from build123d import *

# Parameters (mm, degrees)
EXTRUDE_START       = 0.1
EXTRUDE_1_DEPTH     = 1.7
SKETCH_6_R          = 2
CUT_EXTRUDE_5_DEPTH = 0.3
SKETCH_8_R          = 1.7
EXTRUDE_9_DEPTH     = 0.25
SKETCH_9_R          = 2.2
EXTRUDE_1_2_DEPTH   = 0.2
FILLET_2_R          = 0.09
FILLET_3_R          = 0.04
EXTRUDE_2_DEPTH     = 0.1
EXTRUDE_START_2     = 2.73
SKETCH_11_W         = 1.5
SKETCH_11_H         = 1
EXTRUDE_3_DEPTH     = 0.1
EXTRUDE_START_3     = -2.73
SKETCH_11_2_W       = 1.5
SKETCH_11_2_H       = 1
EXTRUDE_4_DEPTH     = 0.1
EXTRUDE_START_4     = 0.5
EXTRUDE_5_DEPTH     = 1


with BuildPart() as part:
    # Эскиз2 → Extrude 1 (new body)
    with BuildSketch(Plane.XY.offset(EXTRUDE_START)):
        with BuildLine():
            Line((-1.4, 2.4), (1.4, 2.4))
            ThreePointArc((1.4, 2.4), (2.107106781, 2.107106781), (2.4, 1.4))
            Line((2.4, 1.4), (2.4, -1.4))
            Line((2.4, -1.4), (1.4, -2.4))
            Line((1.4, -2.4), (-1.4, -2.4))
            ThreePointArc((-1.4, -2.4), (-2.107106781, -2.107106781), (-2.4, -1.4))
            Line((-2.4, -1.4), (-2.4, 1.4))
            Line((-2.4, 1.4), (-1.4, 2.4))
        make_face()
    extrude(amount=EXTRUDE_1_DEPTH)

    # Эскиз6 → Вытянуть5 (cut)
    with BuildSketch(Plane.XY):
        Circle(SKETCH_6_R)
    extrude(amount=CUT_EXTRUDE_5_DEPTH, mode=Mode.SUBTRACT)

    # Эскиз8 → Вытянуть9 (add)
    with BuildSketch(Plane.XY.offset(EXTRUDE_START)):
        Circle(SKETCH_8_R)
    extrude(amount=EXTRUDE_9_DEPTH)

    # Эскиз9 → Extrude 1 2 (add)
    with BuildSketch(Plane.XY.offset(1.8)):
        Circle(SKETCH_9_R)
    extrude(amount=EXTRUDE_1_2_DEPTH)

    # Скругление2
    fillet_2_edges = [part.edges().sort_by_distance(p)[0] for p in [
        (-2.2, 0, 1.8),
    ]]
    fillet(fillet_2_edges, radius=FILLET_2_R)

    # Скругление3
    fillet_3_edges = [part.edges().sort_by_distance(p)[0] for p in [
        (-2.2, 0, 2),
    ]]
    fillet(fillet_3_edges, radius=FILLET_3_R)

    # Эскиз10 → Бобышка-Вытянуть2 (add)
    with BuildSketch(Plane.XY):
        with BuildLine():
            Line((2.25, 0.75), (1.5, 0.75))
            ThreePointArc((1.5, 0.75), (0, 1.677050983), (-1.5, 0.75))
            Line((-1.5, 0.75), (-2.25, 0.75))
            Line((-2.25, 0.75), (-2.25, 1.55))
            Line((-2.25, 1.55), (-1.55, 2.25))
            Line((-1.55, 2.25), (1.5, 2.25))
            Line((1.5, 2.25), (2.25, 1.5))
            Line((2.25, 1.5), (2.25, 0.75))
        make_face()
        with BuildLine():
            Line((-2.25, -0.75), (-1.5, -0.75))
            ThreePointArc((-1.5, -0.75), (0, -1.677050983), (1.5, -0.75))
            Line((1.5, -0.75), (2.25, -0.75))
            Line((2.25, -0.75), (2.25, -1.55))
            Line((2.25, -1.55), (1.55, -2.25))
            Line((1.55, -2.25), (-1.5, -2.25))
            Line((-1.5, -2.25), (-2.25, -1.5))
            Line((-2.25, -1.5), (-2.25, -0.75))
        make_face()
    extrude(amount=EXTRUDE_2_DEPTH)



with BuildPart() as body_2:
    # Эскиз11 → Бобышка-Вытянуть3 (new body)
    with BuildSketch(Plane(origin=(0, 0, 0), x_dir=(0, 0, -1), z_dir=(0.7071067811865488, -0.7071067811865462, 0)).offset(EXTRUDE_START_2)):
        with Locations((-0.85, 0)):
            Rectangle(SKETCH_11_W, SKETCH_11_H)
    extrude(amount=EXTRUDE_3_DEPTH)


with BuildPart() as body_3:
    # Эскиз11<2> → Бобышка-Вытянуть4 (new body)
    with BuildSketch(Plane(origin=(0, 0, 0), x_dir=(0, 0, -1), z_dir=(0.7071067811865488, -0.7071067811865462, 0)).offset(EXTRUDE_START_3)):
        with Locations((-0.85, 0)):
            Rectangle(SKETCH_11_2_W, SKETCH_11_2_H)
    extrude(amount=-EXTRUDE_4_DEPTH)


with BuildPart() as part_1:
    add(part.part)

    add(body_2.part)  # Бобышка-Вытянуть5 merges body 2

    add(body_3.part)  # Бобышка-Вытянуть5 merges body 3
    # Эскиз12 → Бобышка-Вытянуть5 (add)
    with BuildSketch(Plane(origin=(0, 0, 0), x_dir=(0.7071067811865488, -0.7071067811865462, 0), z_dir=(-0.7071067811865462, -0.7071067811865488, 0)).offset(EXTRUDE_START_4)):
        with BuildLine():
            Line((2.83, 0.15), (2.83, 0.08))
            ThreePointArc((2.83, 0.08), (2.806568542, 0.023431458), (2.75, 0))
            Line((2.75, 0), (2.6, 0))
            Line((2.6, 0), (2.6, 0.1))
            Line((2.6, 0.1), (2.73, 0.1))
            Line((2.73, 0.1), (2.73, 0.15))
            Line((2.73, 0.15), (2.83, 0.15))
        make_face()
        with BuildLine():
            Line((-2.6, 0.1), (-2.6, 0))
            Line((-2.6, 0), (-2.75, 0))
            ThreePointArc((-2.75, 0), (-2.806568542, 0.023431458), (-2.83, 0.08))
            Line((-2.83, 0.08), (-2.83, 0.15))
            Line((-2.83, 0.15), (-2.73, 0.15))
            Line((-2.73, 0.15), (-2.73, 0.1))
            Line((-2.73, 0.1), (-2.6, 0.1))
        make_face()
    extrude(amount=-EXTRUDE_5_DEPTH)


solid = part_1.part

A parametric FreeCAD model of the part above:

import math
import FreeCAD as App
import Part
import Sketcher

V = App.Vector
Q = App.Units.Quantity


def edges_at(feature, points):
    """Names of the edges that pass closest to the given points."""
    edges = feature.Shape.Edges
    near = lambda p: min(range(len(edges)), key=lambda i: edges[i].distToShape(Part.Vertex(*p))[0])
    return sorted({f"Edge{near(p) + 1}" for p in points})


def add_polygon(sketch, points):
    """Adds a closed chain of lines whose ends are joined by coincident constraints."""
    first, n = sketch.GeometryCount, len(points)
    for a, b in zip(points, points[1:] + points[:1]):
        sketch.addGeometry(Part.LineSegment(App.Vector(*a, 0), App.Vector(*b, 0)), False)
    for i in range(n):
        sketch.addConstraint(Sketcher.Constraint("Coincident", first + i, 2, first + (i + 1) % n, 1))

doc = App.newDocument("Part")
body = doc.addObject("PartDesign::Body", "Body")

# Sketch on XY plane
sketch1 = body.newObject("Sketcher::SketchObject", "Sketch")
sketch1.AttachmentSupport = (doc.getObject("XY_Plane"), [""])
sketch1.MapMode = "FlatFace"
sketch1.AttachmentOffset = App.Placement(V(0, 0, 0.1), App.Rotation())
sketch1.addGeometry(Part.LineSegment(V(1.4, 2.4, 0), V(-1.4, 2.4, 0)), False)
sketch1.addGeometry(Part.LineSegment(V(-1.4, 2.4, 0), V(-2.4, 1.4, 0)), False)
sketch1.addGeometry(Part.LineSegment(V(-2.4, 1.4, 0), V(-2.4, -1.4, 0)), False)
sketch1.addGeometry(Part.ArcOfCircle(Part.Circle(V(-1.4, -1.4, 0), V(0, 0, 1), 1), math.radians(-180), math.radians(-90)), False)
sketch1.addGeometry(Part.LineSegment(V(-1.4, -2.4, 0), V(1.4, -2.4, 0)), False)
sketch1.addGeometry(Part.LineSegment(V(1.4, -2.4, 0), V(2.4, -1.4, 0)), False)
sketch1.addGeometry(Part.LineSegment(V(2.4, -1.4, 0), V(2.4, 1.4, 0)), False)
sketch1.addGeometry(Part.ArcOfCircle(Part.Circle(V(1.4, 1.4, 0), V(0, 0, 1), 1), math.radians(0), math.radians(90)), False)
sketch1.addConstraint(Sketcher.Constraint("Coincident", 0, 2, 1, 1))
sketch1.addConstraint(Sketcher.Constraint("Coincident", 1, 2, 2, 1))
sketch1.addConstraint(Sketcher.Constraint("Tangent", 2, 2, 3, 1))
sketch1.addConstraint(Sketcher.Constraint("Tangent", 3, 2, 4, 1))
sketch1.addConstraint(Sketcher.Constraint("Coincident", 4, 2, 5, 1))
sketch1.addConstraint(Sketcher.Constraint("Coincident", 5, 2, 6, 1))
sketch1.addConstraint(Sketcher.Constraint("Tangent", 6, 2, 7, 1))
sketch1.addConstraint(Sketcher.Constraint("Tangent", 7, 2, 0, 1))
sketch1.addConstraint(Sketcher.Constraint("Horizontal", 0))
sketch1.addConstraint(Sketcher.Constraint("Vertical", 2))
sketch1.addConstraint(Sketcher.Constraint("Horizontal", 4))
sketch1.addConstraint(Sketcher.Constraint("Vertical", 6))
sketch1.addConstraint(Sketcher.Constraint("Equal", 3, 7))
sketch1.addConstraint(Sketcher.Constraint("Symmetric", 3, 3, 7, 3, -1, 1))
sketch1.addConstraint(Sketcher.Constraint("Parallel", 1, 5))
sketch1.addConstraint(Sketcher.Constraint("Horizontal", 7, 3, 1, 2))
sketch1.addConstraint(Sketcher.Constraint("Horizontal", 2, 2, 5, 2))
sketch1.addConstraint(Sketcher.Constraint("Vertical", 3, 3, 0, 2))
sketch1.addConstraint(Sketcher.Constraint("Equal", 4, 2))
sketch1.addConstraint(Sketcher.Constraint("Radius", 3, 1.0))
sketch1.addConstraint(Sketcher.Constraint("DistanceX", 0, 2, 0, 1, 2.8))
pad1 = body.newObject("PartDesign::Pad", "Pad")
pad1.Profile = sketch1
pad1.Length = 1.7

# Sketch on XY plane
sketch2 = body.newObject("Sketcher::SketchObject", "Sketch001")
sketch2.AttachmentSupport = (doc.getObject("XY_Plane"), [""])
sketch2.MapMode = "FlatFace"
sketch2.addGeometry(Part.Circle(V(0, 0, 0), V(0, 0, 1), 2), False)
sketch2.addConstraint(Sketcher.Constraint("Coincident", 0, 3, -1, 1))
sketch2.addConstraint(Sketcher.Constraint("Diameter", 0, 4.0))
pocket1 = body.newObject("PartDesign::Pocket", "Pocket")
pocket1.Profile = sketch2
pocket1.Length = 0.3
pocket1.Reversed = True

# Sketch on XY plane
sketch3 = body.newObject("Sketcher::SketchObject", "Sketch002")
sketch3.AttachmentSupport = (doc.getObject("XY_Plane"), [""])
sketch3.MapMode = "FlatFace"
sketch3.AttachmentOffset = App.Placement(V(0, 0, 0.1), App.Rotation())
sketch3.addGeometry(Part.Circle(V(0, 0, 0), V(0, 0, 1), 1.7), False)
sketch3.addConstraint(Sketcher.Constraint("Coincident", 0, 3, -1, 1))
sketch3.addConstraint(Sketcher.Constraint("Diameter", 0, 3.4))
pad2 = body.newObject("PartDesign::Pad", "Pad001")
pad2.Profile = sketch3
pad2.Length = 0.25

# Sketch on XY plane
sketch4 = body.newObject("Sketcher::SketchObject", "Sketch003")
sketch4.AttachmentSupport = (doc.getObject("XY_Plane"), [""])
sketch4.MapMode = "FlatFace"
sketch4.AttachmentOffset = App.Placement(V(0, 0, 1.8), App.Rotation())
sketch4.addGeometry(Part.Circle(V(0, 0, 0), V(0, 0, 1), 2.2), False)
sketch4.addConstraint(Sketcher.Constraint("Coincident", 0, 3, -1, 1))
sketch4.addConstraint(Sketcher.Constraint("Diameter", 0, 4.4))
pad3 = body.newObject("PartDesign::Pad", "Pad002")
pad3.Profile = sketch4
pad3.Length = 0.2
doc.recompute()

fillet = body.newObject("PartDesign::Fillet", "Fillet")
fillet.Base = (pad3, edges_at(pad3, [(-2.2, 0, 1.8)]))
fillet.Radius = 0.09
doc.recompute()

fillet2 = body.newObject("PartDesign::Fillet", "Fillet001")
fillet2.Base = (fillet, edges_at(fillet, [(-2.2, 0, 2)]))
fillet2.Radius = 0.04

# Sketch on XY plane
sketch5 = body.newObject("Sketcher::SketchObject", "Sketch004")
sketch5.AttachmentSupport = (doc.getObject("XY_Plane"), [""])
sketch5.MapMode = "FlatFace"
sketch5.addGeometry(Part.LineSegment(V(1.5, 0.8, 0), V(2.2, 0.8, 0)), False)
sketch5.addGeometry(Part.LineSegment(V(2.2, 0.8, 0), V(2.2, 1.5, 0)), False)
sketch5.addGeometry(Part.LineSegment(V(2.2, 1.5, 0), V(1.5, 2.2, 0)), False)
sketch5.addGeometry(Part.LineSegment(V(1.5, 2.2, 0), V(-1.6, 2.2, 0)), False)
sketch5.addGeometry(Part.LineSegment(V(-1.6, 2.2, 0), V(-2.2, 1.6, 0)), False)
sketch5.addGeometry(Part.LineSegment(V(-2.2, 1.6, 0), V(-2.2, 0.8, 0)), False)
sketch5.addGeometry(Part.LineSegment(V(-2.2, 0.8, 0), V(-1.5, 0.8, 0)), False)
sketch5.addGeometry(Part.ArcOfCircle(Part.Circle(V(0, 0, 0), V(0, 0, 1), 1.7), math.radians(27), math.radians(153)), False)
sketch5.addGeometry(Part.LineSegment(V(-1.5, -0.8, 0), V(-2.2, -0.8, 0)), False)
sketch5.addGeometry(Part.LineSegment(V(-2.2, -0.8, 0), V(-2.2, -1.5, 0)), False)
sketch5.addGeometry(Part.LineSegment(V(-2.2, -1.5, 0), V(-1.5, -2.2, 0)), False)
sketch5.addGeometry(Part.LineSegment(V(-1.5, -2.2, 0), V(1.6, -2.2, 0)), False)
sketch5.addGeometry(Part.LineSegment(V(1.6, -2.2, 0), V(2.2, -1.6, 0)), False)
sketch5.addGeometry(Part.LineSegment(V(2.2, -1.6, 0), V(2.2, -0.8, 0)), False)
sketch5.addGeometry(Part.LineSegment(V(2.2, -0.8, 0), V(1.5, -0.8, 0)), False)
sketch5.addGeometry(Part.ArcOfCircle(Part.Circle(V(0, 0, 0), V(0, 0, 1), 1.7), math.radians(-153), math.radians(-27)), False)
sketch5.addConstraint(Sketcher.Constraint("Coincident", 0, 2, 1, 1))
sketch5.addConstraint(Sketcher.Constraint("Coincident", 1, 2, 2, 1))
sketch5.addConstraint(Sketcher.Constraint("Coincident", 2, 2, 3, 1))
sketch5.addConstraint(Sketcher.Constraint("Coincident", 3, 2, 4, 1))
sketch5.addConstraint(Sketcher.Constraint("Coincident", 4, 2, 5, 1))
sketch5.addConstraint(Sketcher.Constraint("Coincident", 5, 2, 6, 1))
sketch5.addConstraint(Sketcher.Constraint("Coincident", 6, 2, 7, 2))
sketch5.addConstraint(Sketcher.Constraint("Coincident", 7, 1, 0, 1))
sketch5.addConstraint(Sketcher.Constraint("Coincident", 8, 2, 9, 1))
sketch5.addConstraint(Sketcher.Constraint("Coincident", 9, 2, 10, 1))
sketch5.addConstraint(Sketcher.Constraint("Coincident", 10, 2, 11, 1))
sketch5.addConstraint(Sketcher.Constraint("Coincident", 11, 2, 12, 1))
sketch5.addConstraint(Sketcher.Constraint("Coincident", 12, 2, 13, 1))
sketch5.addConstraint(Sketcher.Constraint("Coincident", 13, 2, 14, 1))
sketch5.addConstraint(Sketcher.Constraint("Coincident", 14, 2, 15, 2))
sketch5.addConstraint(Sketcher.Constraint("Coincident", 15, 1, 8, 1))
sketch5.addConstraint(Sketcher.Constraint("Horizontal", 0))
sketch5.addConstraint(Sketcher.Constraint("Vertical", 1))
sketch5.addConstraint(Sketcher.Constraint("Horizontal", 3))
sketch5.addConstraint(Sketcher.Constraint("Vertical", 5))
sketch5.addConstraint(Sketcher.Constraint("Horizontal", 6))
sketch5.addConstraint(Sketcher.Constraint("Horizontal", 8))
sketch5.addConstraint(Sketcher.Constraint("Vertical", 9))
sketch5.addConstraint(Sketcher.Constraint("Horizontal", 11))
sketch5.addConstraint(Sketcher.Constraint("Vertical", 13))
sketch5.addConstraint(Sketcher.Constraint("Horizontal", 14))
sketch5.addConstraint(Sketcher.Constraint("Coincident", 7, 3, -1, 1))
sketch5.addConstraint(Sketcher.Constraint("Coincident", 15, 3, -1, 1))
sketch5.addConstraint(Sketcher.Constraint("Equal", 7, 15))
sketch5.addConstraint(Sketcher.Constraint("Symmetric", 0, 2, 8, 2, -1, 1))
sketch5.addConstraint(Sketcher.Constraint("Symmetric", 2, 2, 10, 2, -1, 1))
sketch5.addConstraint(Sketcher.Constraint("Symmetric", 4, 2, 12, 2, -1, 1))
sketch5.addConstraint(Sketcher.Constraint("Symmetric", 0, 2, 5, 2, -2))
sketch5.addConstraint(Sketcher.Constraint("Perpendicular", 2, 4))
sketch5.addConstraint(Sketcher.Constraint("Perpendicular", 4, 10))
sketch5.addConstraint(Sketcher.Constraint("Perpendicular", 10, 12))
sketch5.addConstraint(Sketcher.Constraint("Horizontal", 8, 2, 13, 2))
sketch5.addConstraint(Sketcher.Constraint("Vertical", 2, 2, 7, 1))
sketch5.addConstraint(Sketcher.Constraint("Equal", 14, 1))
sketch5.addConstraint(Sketcher.Constraint("Angle", 2, Q("135 deg")))
sketch5.addConstraint(Sketcher.Constraint("DistanceY", 5, 2, 5, 1, 0.8))
sketch5.addConstraint(Sketcher.Constraint("DistanceY", 10, 2, 6, 2, 3.0))
sketch5.addConstraint(Sketcher.Constraint("DistanceX", 0, 1, 0, 2, 0.75))
sketch5.addConstraint(Sketcher.Constraint("DistanceX", 3, 2, 3, 1, 3.05))
pad4 = body.newObject("PartDesign::Pad", "Pad003")
pad4.Profile = sketch5
pad4.Length = 0.1
body2 = doc.addObject("PartDesign::Body", "Body001")

# Sketch on an angled plane
sketch6 = body2.newObject("Sketcher::SketchObject", "Sketch005")
sketch6.Placement = App.Placement(V(1.930402, -1.930402, 0), App.Rotation(V(0, 0, -1), V(0.707106781, 0.707106781, 0), V(0.707106781, -0.707106781, 0), "ZXY"))
add_polygon(sketch6, [(-1.6, 0.5), (-1.6, -0.5), (-0.1, -0.5), (-0.1, 0.5)])  # lines 0-3
sketch6.addConstraint(Sketcher.Constraint("Vertical", 0))
sketch6.addConstraint(Sketcher.Constraint("Horizontal", 1))
sketch6.addConstraint(Sketcher.Constraint("Vertical", 2))
sketch6.addConstraint(Sketcher.Constraint("Horizontal", 3))
sketch6.addConstraint(Sketcher.Constraint("DistanceY", 0, 2, 0, 1, 1.0))
sketch6.addConstraint(Sketcher.Constraint("DistanceX", 1, 1, 1, 2, 1.5))
sketch6.addConstraint(Sketcher.Constraint("DistanceX", 0, 2, -1, 1, 1.6))
sketch6.addConstraint(Sketcher.Constraint("DistanceY", 0, 2, -1, 1, 0.5))
pad5 = body2.newObject("PartDesign::Pad", "Pad004")
pad5.Profile = sketch6
pad5.Length = 0.1
body3 = doc.addObject("PartDesign::Body", "Body002")

# Sketch on an angled plane
sketch7 = body3.newObject("Sketcher::SketchObject", "Sketch006")
sketch7.Placement = App.Placement(V(-1.930402, 1.930402, 0), App.Rotation(V(0, 0, -1), V(0.707106781, 0.707106781, 0), V(0.707106781, -0.707106781, 0), "ZXY"))
add_polygon(sketch7, [(-1.6, 0.5), (-1.6, -0.5), (-0.1, -0.5), (-0.1, 0.5)])  # lines 0-3
sketch7.addConstraint(Sketcher.Constraint("Vertical", 0))
sketch7.addConstraint(Sketcher.Constraint("Horizontal", 1))
sketch7.addConstraint(Sketcher.Constraint("Vertical", 2))
sketch7.addConstraint(Sketcher.Constraint("Horizontal", 3))
sketch7.addConstraint(Sketcher.Constraint("DistanceY", 0, 2, 0, 1, 1.0))
sketch7.addConstraint(Sketcher.Constraint("DistanceX", 1, 1, 1, 2, 1.5))
sketch7.addConstraint(Sketcher.Constraint("DistanceX", 0, 2, -1, 1, 1.6))
sketch7.addConstraint(Sketcher.Constraint("DistanceY", 0, 2, -1, 1, 0.5))
pad6 = body3.newObject("PartDesign::Pad", "Pad005")
pad6.Profile = sketch7
pad6.Length = 0.1
pad6.Reversed = True
body.AllowCompound = True
doc.recompute()

boolean = body.newObject("PartDesign::Boolean", "Boolean")
boolean.Type = "Fuse"
boolean.addObjects([body2])
doc.recompute()

boolean2 = body.newObject("PartDesign::Boolean", "Boolean001")
boolean2.Type = "Fuse"
boolean2.addObjects([body3])

# Sketch on an angled plane
sketch8 = body.newObject("Sketcher::SketchObject", "Sketch007")
sketch8.Placement = App.Placement(V(-0.353553, -0.353553, 0), App.Rotation(V(0.707106781, -0.707106781, 0), V(0, 0, 0.999999999), V(-0.707106781, -0.707106781, 0), "ZXY"))
sketch8.addGeometry(Part.LineSegment(V(2.83, 0.08, 0), V(2.83, 0.15, 0)), False)
sketch8.addGeometry(Part.LineSegment(V(2.83, 0.15, 0), V(2.73, 0.15, 0)), False)
sketch8.addGeometry(Part.LineSegment(V(2.73, 0.15, 0), V(2.73, 0.1, 0)), False)
sketch8.addGeometry(Part.LineSegment(V(2.73, 0.1, 0), V(2.6, 0.1, 0)), False)
sketch8.addGeometry(Part.LineSegment(V(2.6, 0.1, 0), V(2.6, 0, 0)), False)
sketch8.addGeometry(Part.LineSegment(V(2.6, 0, 0), V(2.75, 0, 0)), False)
sketch8.addGeometry(Part.ArcOfCircle(Part.Circle(V(2.75, 0.08, 0), V(0, 0, 1), 0.08), math.radians(-90), math.radians(0)), False)
sketch8.addGeometry(Part.LineSegment(V(-2.6, 0, 0), V(-2.6, 0.1, 0)), False)
sketch8.addGeometry(Part.LineSegment(V(-2.6, 0.1, 0), V(-2.73, 0.1, 0)), False)
sketch8.addGeometry(Part.LineSegment(V(-2.73, 0.1, 0), V(-2.73, 0.15, 0)), False)
sketch8.addGeometry(Part.LineSegment(V(-2.73, 0.15, 0), V(-2.83, 0.15, 0)), False)
sketch8.addGeometry(Part.LineSegment(V(-2.83, 0.15, 0), V(-2.83, 0.08, 0)), False)
sketch8.addGeometry(Part.ArcOfCircle(Part.Circle(V(-2.75, 0.08, 0), V(0, 0, 1), 0.08), math.radians(-180), math.radians(-90)), False)
sketch8.addGeometry(Part.LineSegment(V(-2.75, 0, 0), V(-2.6, 0, 0)), False)
sketch8.addConstraint(Sketcher.Constraint("Coincident", 0, 2, 1, 1))
sketch8.addConstraint(Sketcher.Constraint("Coincident", 1, 2, 2, 1))
sketch8.addConstraint(Sketcher.Constraint("Coincident", 2, 2, 3, 1))
sketch8.addConstraint(Sketcher.Constraint("Coincident", 3, 2, 4, 1))
sketch8.addConstraint(Sketcher.Constraint("Coincident", 4, 2, 5, 1))
sketch8.addConstraint(Sketcher.Constraint("Tangent", 5, 2, 6, 1))
sketch8.addConstraint(Sketcher.Constraint("Tangent", 6, 2, 0, 1))
sketch8.addConstraint(Sketcher.Constraint("Coincident", 7, 2, 8, 1))
sketch8.addConstraint(Sketcher.Constraint("Coincident", 8, 2, 9, 1))
sketch8.addConstraint(Sketcher.Constraint("Coincident", 9, 2, 10, 1))
sketch8.addConstraint(Sketcher.Constraint("Coincident", 10, 2, 11, 1))
sketch8.addConstraint(Sketcher.Constraint("Tangent", 11, 2, 12, 1))
sketch8.addConstraint(Sketcher.Constraint("Tangent", 12, 2, 13, 1))
sketch8.addConstraint(Sketcher.Constraint("Coincident", 13, 2, 7, 1))
sketch8.addConstraint(Sketcher.Constraint("Vertical", 0))
sketch8.addConstraint(Sketcher.Constraint("Horizontal", 1))
sketch8.addConstraint(Sketcher.Constraint("Vertical", 2))
sketch8.addConstraint(Sketcher.Constraint("Horizontal", 3))
sketch8.addConstraint(Sketcher.Constraint("Vertical", 4))
sketch8.addConstraint(Sketcher.Constraint("Horizontal", 5))
sketch8.addConstraint(Sketcher.Constraint("Vertical", 7))
sketch8.addConstraint(Sketcher.Constraint("Horizontal", 8))
sketch8.addConstraint(Sketcher.Constraint("Vertical", 9))
sketch8.addConstraint(Sketcher.Constraint("Horizontal", 10))
sketch8.addConstraint(Sketcher.Constraint("Vertical", 11))
sketch8.addConstraint(Sketcher.Constraint("Horizontal", 13))
sketch8.addConstraint(Sketcher.Constraint("Equal", 6, 12))
sketch8.addConstraint(Sketcher.Constraint("Symmetric", 5, 2, 12, 2, -1, 1))
sketch8.addConstraint(Sketcher.Constraint("Symmetric", 3, 2, 7, 2, -2))
sketch8.addConstraint(Sketcher.Constraint("Symmetric", 1, 2, 9, 2, -2))
sketch8.addConstraint(Sketcher.Constraint("PointOnObject", 4, 2, -1))
sketch8.addConstraint(Sketcher.Constraint("Equal", 10, 4))
sketch8.addConstraint(Sketcher.Constraint("Radius", 6, 0.08))
sketch8.addConstraint(Sketcher.Constraint("DistanceX", 1, 2, 1, 1, 0.1))
sketch8.addConstraint(Sketcher.Constraint("DistanceX", 3, 2, 3, 1, 0.13))
sketch8.addConstraint(Sketcher.Constraint("DistanceY", 0, 1, 0, 2, 0.07))
sketch8.addConstraint(Sketcher.Constraint("DistanceX", -1, 1, 3, 2, 2.6))
pad7 = body.newObject("PartDesign::Pad", "Pad006")
pad7.Profile = sketch8
pad7.Length = 1
pad7.Reversed = True

doc.recompute()
